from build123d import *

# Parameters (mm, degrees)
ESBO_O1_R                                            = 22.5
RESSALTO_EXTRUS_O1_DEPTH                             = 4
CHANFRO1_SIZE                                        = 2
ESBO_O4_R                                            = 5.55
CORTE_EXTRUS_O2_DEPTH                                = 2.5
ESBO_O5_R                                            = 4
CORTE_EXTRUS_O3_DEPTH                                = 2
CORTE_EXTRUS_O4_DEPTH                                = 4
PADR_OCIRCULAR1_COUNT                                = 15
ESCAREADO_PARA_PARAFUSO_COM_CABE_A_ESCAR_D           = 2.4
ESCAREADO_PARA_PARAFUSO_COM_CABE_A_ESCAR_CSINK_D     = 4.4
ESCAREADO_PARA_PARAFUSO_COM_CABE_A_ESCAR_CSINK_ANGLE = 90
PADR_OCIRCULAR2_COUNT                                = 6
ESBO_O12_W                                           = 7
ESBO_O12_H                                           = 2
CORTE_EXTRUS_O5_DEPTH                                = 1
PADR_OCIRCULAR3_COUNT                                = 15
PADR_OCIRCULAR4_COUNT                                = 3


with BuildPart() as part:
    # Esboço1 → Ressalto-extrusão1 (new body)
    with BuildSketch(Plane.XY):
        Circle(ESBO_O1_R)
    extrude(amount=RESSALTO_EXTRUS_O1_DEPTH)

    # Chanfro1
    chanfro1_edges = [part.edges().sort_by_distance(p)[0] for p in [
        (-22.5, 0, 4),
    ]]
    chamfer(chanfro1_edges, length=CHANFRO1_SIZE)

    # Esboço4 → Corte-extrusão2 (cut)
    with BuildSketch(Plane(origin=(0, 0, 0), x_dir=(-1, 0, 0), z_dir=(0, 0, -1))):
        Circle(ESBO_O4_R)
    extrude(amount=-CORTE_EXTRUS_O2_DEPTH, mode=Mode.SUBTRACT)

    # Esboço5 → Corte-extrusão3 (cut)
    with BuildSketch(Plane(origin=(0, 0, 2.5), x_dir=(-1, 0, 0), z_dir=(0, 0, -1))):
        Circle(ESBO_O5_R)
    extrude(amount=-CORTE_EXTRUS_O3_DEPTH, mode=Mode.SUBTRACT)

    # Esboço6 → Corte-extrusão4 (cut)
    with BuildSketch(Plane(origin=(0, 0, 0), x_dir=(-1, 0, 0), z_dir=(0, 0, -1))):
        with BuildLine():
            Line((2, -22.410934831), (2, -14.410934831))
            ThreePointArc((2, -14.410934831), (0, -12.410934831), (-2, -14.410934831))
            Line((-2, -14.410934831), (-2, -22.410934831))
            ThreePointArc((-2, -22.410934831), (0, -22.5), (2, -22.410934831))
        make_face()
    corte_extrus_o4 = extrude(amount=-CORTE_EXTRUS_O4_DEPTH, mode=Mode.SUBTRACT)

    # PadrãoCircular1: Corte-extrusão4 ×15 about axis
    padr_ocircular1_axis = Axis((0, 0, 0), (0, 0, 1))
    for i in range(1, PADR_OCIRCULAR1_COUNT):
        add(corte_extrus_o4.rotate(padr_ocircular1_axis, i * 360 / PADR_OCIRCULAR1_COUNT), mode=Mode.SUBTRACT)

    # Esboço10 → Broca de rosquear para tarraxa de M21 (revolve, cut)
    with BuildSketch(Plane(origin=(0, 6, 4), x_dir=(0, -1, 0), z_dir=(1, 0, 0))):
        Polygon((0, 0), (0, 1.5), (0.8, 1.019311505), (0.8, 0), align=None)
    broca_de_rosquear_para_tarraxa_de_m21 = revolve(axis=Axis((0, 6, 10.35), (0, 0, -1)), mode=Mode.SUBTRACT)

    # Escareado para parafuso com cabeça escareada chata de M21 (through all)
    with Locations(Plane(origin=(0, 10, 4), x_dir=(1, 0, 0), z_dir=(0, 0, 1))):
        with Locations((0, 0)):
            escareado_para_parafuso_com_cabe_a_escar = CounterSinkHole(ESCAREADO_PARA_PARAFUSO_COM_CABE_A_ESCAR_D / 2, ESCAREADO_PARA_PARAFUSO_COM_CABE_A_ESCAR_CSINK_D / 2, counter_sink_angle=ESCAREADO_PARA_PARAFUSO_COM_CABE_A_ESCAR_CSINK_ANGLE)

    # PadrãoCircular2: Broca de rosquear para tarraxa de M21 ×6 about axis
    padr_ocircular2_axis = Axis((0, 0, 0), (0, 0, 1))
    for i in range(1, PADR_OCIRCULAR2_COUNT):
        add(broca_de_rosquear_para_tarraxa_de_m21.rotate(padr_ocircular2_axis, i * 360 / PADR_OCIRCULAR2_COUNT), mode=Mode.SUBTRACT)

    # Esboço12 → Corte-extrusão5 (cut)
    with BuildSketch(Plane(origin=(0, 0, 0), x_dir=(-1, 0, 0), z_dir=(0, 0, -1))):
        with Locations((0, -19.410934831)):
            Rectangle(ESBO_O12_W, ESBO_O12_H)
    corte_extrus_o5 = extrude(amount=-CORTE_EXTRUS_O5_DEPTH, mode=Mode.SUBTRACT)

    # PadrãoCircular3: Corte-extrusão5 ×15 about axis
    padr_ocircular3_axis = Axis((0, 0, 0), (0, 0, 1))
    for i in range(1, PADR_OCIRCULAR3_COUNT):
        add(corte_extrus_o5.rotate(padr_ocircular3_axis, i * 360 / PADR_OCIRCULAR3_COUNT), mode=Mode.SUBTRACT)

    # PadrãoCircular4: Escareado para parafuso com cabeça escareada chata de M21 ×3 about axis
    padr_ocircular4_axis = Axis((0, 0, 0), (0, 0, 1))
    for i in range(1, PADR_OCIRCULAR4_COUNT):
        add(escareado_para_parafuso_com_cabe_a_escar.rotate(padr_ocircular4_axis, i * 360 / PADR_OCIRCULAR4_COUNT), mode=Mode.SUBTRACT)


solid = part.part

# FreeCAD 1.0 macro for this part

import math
import FreeCAD as App
import Part
import Sketcher

V = App.Vector
Q = App.Units.Quantity


def edges_at(feature, points):
    """Names of the edges that pass closest to the given points."""
    edges = feature.Shape.Edges
    near = lambda p: min(range(len(edges)), key=lambda i: edges[i].distToShape(Part.Vertex(*p))[0])
    return sorted({f"Edge{near(p) + 1}" for p in points})

doc = App.newDocument("Part")
body = doc.addObject("PartDesign::Body", "Body")

# Sketch on XY plane
sketch1 = body.newObject("Sketcher::SketchObject", "Sketch")
sketch1.AttachmentSupport = (doc.getObject("XY_Plane"), [""])
sketch1.MapMode = "FlatFace"
sketch1.addGeometry(Part.Circle(V(0, 0, 0), V(0, 0, 1), 22), False)
sketch1.addConstraint([
    Sketcher.Constraint("Coincident", 0, 3, -1, 1),
    Sketcher.Constraint("Diameter", 0, 45.0),
])
pad1 = body.newObject("PartDesign::Pad", "Pad")
pad1.Profile = sketch1
pad1.Length = 4
doc.recompute()

chamfer = body.newObject("PartDesign::Chamfer", "Chamfer")
chamfer.Base = (pad1, edges_at(pad1, [(-22.5, 0, 4)]))
chamfer.Size = 2

# Sketch on XY plane
sketch2 = body.newObject("Sketcher::SketchObject", "Sketch001")
sketch2.AttachmentSupport = (doc.getObject("XY_Plane"), [""])
sketch2.MapMode = "FlatFace"
sketch2.addGeometry(Part.Circle(V(0, 0, 0), V(0, 0, 1), 6), False)
sketch2.addConstraint([
    Sketcher.Constraint("Coincident", 0, 3, -1, 1),
    Sketcher.Constraint("Diameter", 0, 11.1),
])
pocket1 = body.newObject("PartDesign::Pocket", "Pocket")
pocket1.Profile = sketch2
pocket1.Length = 2.5
pocket1.Reversed = True

# Sketch on XY plane
sketch3 = body.newObject("Sketcher::SketchObject", "Sketch002")
sketch3.AttachmentSupport = (doc.getObject("XY_Plane"), [""])
sketch3.MapMode = "FlatFace"
sketch3.AttachmentOffset = App.Placement(V(0, 0, 2.5), App.Rotation())
sketch3.addGeometry(Part.Circle(V(0, 0, 0), V(0, 0, 1), 4), False)
sketch3.addConstraint([
    Sketcher.Constraint("Coincident", 0, 3, -1, 1),
    Sketcher.Constraint("Diameter", 0, 8.0),
])
pocket2 = body.newObject("PartDesign::Pocket", "Pocket001")
pocket2.Profile = sketch3
pocket2.Length = 2
pocket2.Reversed = True

# Sketch on XY plane
sketch4 = body.newObject("Sketcher::SketchObject", "Sketch003")
sketch4.AttachmentSupport = (doc.getObject("XY_Plane"), [""])
sketch4.MapMode = "FlatFace"
sketch4.addGeometry([
    Part.LineSegment(V(-2, -22.4, 0), V(-2, -14.4, 0)),
    Part.ArcOfCircle(Part.Circle(V(0, -14.4, 0), V(0, 0, 1), 2), math.radians(0), math.radians(180)),
    Part.LineSegment(V(2, -14.4, 0), V(2, -22.4, 0)),
    Part.ArcOfCircle(Part.Circle(V(0, 0, 0), V(0, 0, 1), 22.5), math.radians(-95.1), math.radians(-84.9)),
], False)
sketch4.addConstraint([
    Sketcher.Constraint("Tangent", 0, 2, 1, 2),
    Sketcher.Constraint("Tangent", 1, 1, 2, 1),
    Sketcher.Constraint("Coincident", 2, 2, 3, 2),
    Sketcher.Constraint("Coincident", 3, 1, 0, 1),
    Sketcher.Constraint("Vertical", 0),
    Sketcher.Constraint("Vertical", 2),
    Sketcher.Constraint("Coincident", 3, 3, -1, 1),
    Sketcher.Constraint("PointOnObject", 1, 3, -2),
    Sketcher.Constraint("Radius", 1, 2.0),
    Sketcher.Constraint("Radius", 3, 22.5),
    Sketcher.Constraint("DistanceY", 0, 1, 0, 2, 8.0),
])
pocket3 = body.newObject("PartDesign::Pocket", "Pocket002")
pocket3.Profile = sketch4
pocket3.Length = 4
pocket3.Reversed = True
doc.recompute()

polarpattern = body.newObject("PartDesign::PolarPattern", "PolarPattern")
polarpattern.Originals = [pocket3]
polarpattern.Axis = (doc.getObject("Z_Axis"), [""])
polarpattern.Angle = 360
polarpattern.Occurrences = 15
body.Tip = polarpattern

# Sketch on YZ plane
sketch5 = body.newObject("Sketcher::SketchObject", "Sketch004")
sketch5.AttachmentSupport = (doc.getObject("YZ_Plane"), [""])
sketch5.MapMode = "FlatFace"
sketch5.addGeometry([
    Part.LineSegment(V(6, 2.5, 0), V(6, 4, 0)),
    Part.LineSegment(V(6, 4, 0), V(5.2, 4, 0)),
    Part.LineSegment(V(5.2, 4, 0), V(5.2, 3, 0)),
    Part.LineSegment(V(5.2, 3, 0), V(6, 2.5, 0)),
], False)
sketch5.addGeometry(Part.LineSegment(V(6, 4, 0), V(6, 2.5, 0)), True)  # axis
sketch5.addConstraint([
    Sketcher.Constraint("Coincident", 0, 2, 1, 1),
    Sketcher.Constraint("Coincident", 1, 2, 2, 1),
    Sketcher.Constraint("Coincident", 2, 2, 3, 1),
    Sketcher.Constraint("Coincident", 3, 2, 0, 1),
    Sketcher.Constraint("Vertical", 0),
    Sketcher.Constraint("Horizontal", 1),
    Sketcher.Constraint("Vertical", 2),
    Sketcher.Constraint("Vertical", 4),
    Sketcher.Constraint("Coincident", 4, 1, 0, 2),
    Sketcher.Constraint("Equal", 0, 4),
    Sketcher.Constraint("Angle", 3, Q("-31 deg")),
    Sketcher.Constraint("DistanceX", 1, 2, 1, 1, 0.8),
    Sketcher.Constraint("DistanceY", 0, 1, 0, 2, 1.5),
    Sketcher.Constraint("DistanceX", -1, 1, 0, 2, 6.0),
    Sketcher.Constraint("DistanceY", -1, 1, 0, 2, 4.0),
])
groove = body.newObject("PartDesign::Groove", "Groove")
groove.Profile = sketch5
groove.ReferenceAxis = (sketch5, ["Axis0"])
groove.Angle = 360

# Sketch on XY plane
sketch6 = body.newObject("Sketcher::SketchObject", "Sketch005")
sketch6.AttachmentSupport = (doc.getObject("XY_Plane"), [""])
sketch6.MapMode = "FlatFace"
sketch6.AttachmentOffset = App.Placement(V(0, 0, 4), App.Rotation())
sketch6.addGeometry(Part.Circle(V(0, 10, 0), V(0, 0, 1), 1.2), False)
sketch6.addConstraint([
    Sketcher.Constraint("PointOnObject", 0, 3, -2),
    Sketcher.Constraint("Diameter", 0, 2.4),
    Sketcher.Constraint("DistanceY", -1, 1, 0, 3, 10.0),
])
doc.recompute()
hole = body.newObject("PartDesign::Hole", "Hole")
hole.Profile = sketch6
hole.ThreadType = "None"
hole.Diameter = 2.4
hole.DepthType = "ThroughAll"
hole.HoleCutType = "Countersink"
hole.HoleCutDiameter = 4.4
hole.HoleCutCountersinkAngle = 90
doc.recompute()

polarpattern2 = body.newObject("PartDesign::PolarPattern", "PolarPattern001")
polarpattern2.Originals = [groove]
polarpattern2.Axis = (doc.getObject("Z_Axis"), [""])
polarpattern2.Angle = 360
polarpattern2.Occurrences = 6
body.Tip = polarpattern2

# Sketch on XY plane
sketch7 = body.newObject("Sketcher::SketchObject", "Sketch006")
sketch7.AttachmentSupport = (doc.getObject("XY_Plane"), [""])
sketch7.MapMode = "FlatFace"
sketch7.addGeometry([
    Part.LineSegment(V(3.5, -18.4, 0), V(3.5, -20.4, 0)),
    Part.LineSegment(V(3.5, -20.4, 0), V(-3.5, -20.4, 0)),
    Part.LineSegment(V(-3.5, -20.4, 0), V(-3.5, -18.4, 0)),
    Part.LineSegment(V(-3.5, -18.4, 0), V(3.5, -18.4, 0)),
], False)
sketch7.addConstraint([
    Sketcher.Constraint("Coincident", 0, 2, 1, 1),
    Sketcher.Constraint("Coincident", 1, 2, 2, 1),
    Sketcher.Constraint("Coincident", 2, 2, 3, 1),
    Sketcher.Constraint("Coincident", 3, 2, 0, 1),
    Sketcher.Constraint("Vertical", 0),
    Sketcher.Constraint("Horizontal", 1),
    Sketcher.Constraint("Vertical", 2),
    Sketcher.Constraint("Horizontal", 3),
    Sketcher.Constraint("DistanceX", 1, 2, 1, 1, 7.0),
    Sketcher.Constraint("DistanceY", 0, 2, 0, 1, 2.0),
    Sketcher.Constraint("DistanceX", -1, 1, 0, 2, 3.5),
    Sketcher.Constraint("DistanceY", 0, 2, -1, 1, 20.410935),
])
pocket4 = body.newObject("PartDesign::Pocket", "Pocket003")
pocket4.Profile = sketch7
pocket4.Length = 1
pocket4.Reversed = True
doc.recompute()

polarpattern3 = body.newObject("PartDesign::PolarPattern", "PolarPattern002")
polarpattern3.Originals = [pocket4]
polarpattern3.Axis = (doc.getObject("Z_Axis"), [""])
polarpattern3.Angle = 360
polarpattern3.Occurrences = 15
body.Tip = polarpattern3
doc.recompute()

polarpattern4 = body.newObject("PartDesign::PolarPattern", "PolarPattern003")
polarpattern4.Originals = [hole]
polarpattern4.Axis = (doc.getObject("Z_Axis"), [""])
polarpattern4.Angle = 360
polarpattern4.Occurrences = 3
body.Tip = polarpattern4

doc.recompute()
